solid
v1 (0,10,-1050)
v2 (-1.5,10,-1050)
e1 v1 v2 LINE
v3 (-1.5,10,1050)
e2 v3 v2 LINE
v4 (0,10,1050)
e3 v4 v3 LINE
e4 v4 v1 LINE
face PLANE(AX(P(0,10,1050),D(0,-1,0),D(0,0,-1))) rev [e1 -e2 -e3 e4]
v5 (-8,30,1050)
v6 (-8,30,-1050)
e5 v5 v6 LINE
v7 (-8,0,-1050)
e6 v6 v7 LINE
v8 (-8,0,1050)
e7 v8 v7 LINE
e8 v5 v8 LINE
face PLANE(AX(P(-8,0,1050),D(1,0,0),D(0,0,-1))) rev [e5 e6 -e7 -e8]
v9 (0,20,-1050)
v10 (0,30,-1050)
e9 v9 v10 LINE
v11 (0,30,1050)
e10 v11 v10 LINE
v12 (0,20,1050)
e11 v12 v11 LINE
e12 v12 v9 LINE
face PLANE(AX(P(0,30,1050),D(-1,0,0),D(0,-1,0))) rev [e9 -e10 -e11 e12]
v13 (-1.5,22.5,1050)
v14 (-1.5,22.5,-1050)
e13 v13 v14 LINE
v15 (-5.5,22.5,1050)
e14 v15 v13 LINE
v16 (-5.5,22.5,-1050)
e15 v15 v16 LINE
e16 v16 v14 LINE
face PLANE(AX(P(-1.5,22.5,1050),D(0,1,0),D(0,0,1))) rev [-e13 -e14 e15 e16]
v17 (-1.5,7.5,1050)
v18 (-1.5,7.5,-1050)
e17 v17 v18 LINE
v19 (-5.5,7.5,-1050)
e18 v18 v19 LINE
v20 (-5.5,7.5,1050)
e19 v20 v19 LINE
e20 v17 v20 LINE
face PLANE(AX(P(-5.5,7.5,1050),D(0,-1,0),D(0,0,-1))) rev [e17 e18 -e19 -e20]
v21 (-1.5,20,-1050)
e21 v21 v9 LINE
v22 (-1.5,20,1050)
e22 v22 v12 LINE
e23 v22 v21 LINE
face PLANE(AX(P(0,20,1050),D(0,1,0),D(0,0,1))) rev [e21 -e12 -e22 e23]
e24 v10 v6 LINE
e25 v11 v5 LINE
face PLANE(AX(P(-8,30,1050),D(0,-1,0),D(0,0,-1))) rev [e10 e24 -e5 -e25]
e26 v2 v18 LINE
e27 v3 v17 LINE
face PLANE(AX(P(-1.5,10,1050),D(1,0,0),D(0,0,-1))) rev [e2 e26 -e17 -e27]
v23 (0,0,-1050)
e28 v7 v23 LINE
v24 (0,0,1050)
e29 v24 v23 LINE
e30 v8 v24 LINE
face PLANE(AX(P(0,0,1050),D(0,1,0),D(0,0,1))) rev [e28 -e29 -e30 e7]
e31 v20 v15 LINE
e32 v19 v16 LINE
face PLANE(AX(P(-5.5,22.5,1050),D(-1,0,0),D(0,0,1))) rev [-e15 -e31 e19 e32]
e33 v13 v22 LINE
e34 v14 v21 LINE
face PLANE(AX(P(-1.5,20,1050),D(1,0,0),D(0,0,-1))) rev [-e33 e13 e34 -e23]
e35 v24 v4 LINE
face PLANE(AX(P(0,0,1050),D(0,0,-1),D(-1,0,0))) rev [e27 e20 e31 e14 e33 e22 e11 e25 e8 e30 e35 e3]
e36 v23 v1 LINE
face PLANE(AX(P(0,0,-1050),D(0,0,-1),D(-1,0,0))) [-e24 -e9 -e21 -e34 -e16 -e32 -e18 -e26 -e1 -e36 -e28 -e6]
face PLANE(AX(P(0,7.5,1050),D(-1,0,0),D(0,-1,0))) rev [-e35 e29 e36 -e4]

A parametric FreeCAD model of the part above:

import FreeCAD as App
import Part
import Sketcher

V = App.Vector
Q = App.Units.Quantity

doc = App.newDocument("Part")
body = doc.addObject("PartDesign::Body", "Body")

# Sketch on XY plane
sketch1 = body.newObject("Sketcher::SketchObject", "Sketch")
sketch1.AttachmentSupport = (doc.getObject("XY_Plane"), [""])
sketch1.MapMode = "FlatFace"
sketch1.addGeometry(Part.LineSegment(V(-8, 0, 0), V(0, 0, 0)), False)
sketch1.addGeometry(Part.LineSegment(V(0, 0, 0), V(0, 10, 0)), False)
sketch1.addGeometry(Part.LineSegment(V(0, 10, 0), V(-1.5, 10, 0)), False)
sketch1.addGeometry(Part.LineSegment(V(-1.5, 10, 0), V(-1.5, 7.5, 0)), False)
sketch1.addGeometry(Part.LineSegment(V(-1.5, 7.5, 0), V(-5.5, 7.5, 0)), False)
sketch1.addGeometry(Part.LineSegment(V(-5.5, 7.5, 0), V(-5.5, 22.5, 0)), False)
sketch1.addGeometry(Part.LineSegment(V(-5.5, 22.5, 0), V(-1.5, 22.5, 0)), False)
sketch1.addGeometry(Part.LineSegment(V(-1.5, 22.5, 0), V(-1.5, 20, 0)), False)
sketch1.addGeometry(Part.LineSegment(V(-1.5, 20, 0), V(0, 20, 0)), False)
sketch1.addGeometry(Part.LineSegment(V(0, 20, 0), V(0, 30, 0)), False)
sketch1.addGeometry(Part.LineSegment(V(0, 30, 0), V(-8, 30, 0)), False)
sketch1.addGeometry(Part.LineSegment(V(-8, 30, 0), V(-8, 0, 0)), False)
sketch1.addConstraint(Sketcher.Constraint("Coincident", 0, 2, 1, 1))
sketch1.addConstraint(Sketcher.Constraint("Coincident", 1, 2, 2, 1))
sketch1.addConstraint(Sketcher.Constraint("Coincident", 2, 2, 3, 1))
sketch1.addConstraint(Sketcher.Constraint("Coincident", 3, 2, 4, 1))
sketch1.addConstraint(Sketcher.Constraint("Coincident", 4, 2, 5, 1))
sketch1.addConstraint(Sketcher.Constraint("Coincident", 5, 2, 6, 1))
sketch1.addConstraint(Sketcher.Constraint("Coincident", 6, 2, 7, 1))
sketch1.addConstraint(Sketcher.Constraint("Coincident", 7, 2, 8, 1))
sketch1.addConstraint(Sketcher.Constraint("Coincident", 8, 2, 9, 1))
sketch1.addConstraint(Sketcher.Constraint("Coincident", 9, 2, 10, 1))
sketch1.addConstraint(Sketcher.Constraint("Coincident", 10, 2, 11, 1))
sketch1.addConstraint(Sketcher.Constraint("Coincident", 11, 2, 0, 1))
sketch1.addConstraint(Sketcher.Constraint("Horizontal", 0))
sketch1.addConstraint(Sketcher.Constraint("Vertical", 1))
sketch1.addConstraint(Sketcher.Constraint("Horizontal", 2))
sketch1.addConstraint(Sketcher.Constraint("Vertical", 3))
sketch1.addConstraint(Sketcher.Constraint("Horizontal", 4))
sketch1.addConstraint(Sketcher.Constraint("Vertical", 5))
sketch1.addConstraint(Sketcher.Constraint("Horizontal", 6))
sketch1.addConstraint(Sketcher.Constraint("Vertical", 7))
sketch1.addConstraint(Sketcher.Constraint("Horizontal", 8))
sketch1.addConstraint(Sketcher.Constraint("Vertical", 9))
sketch1.addConstraint(Sketcher.Constraint("Horizontal", 10))
sketch1.addConstraint(Sketcher.Constraint("Vertical", 11))
sketch1.addConstraint(Sketcher.Constraint("Coincident", 0, 2, -1, 1))
sketch1.addConstraint(Sketcher.Constraint("PointOnObject", 8, 2, -2))
sketch1.addConstraint(Sketcher.Constraint("Vertical", 3, 2, 6, 2))
sketch1.addConstraint(Sketcher.Constraint("Equal", 3, 7))
sketch1.addConstraint(Sketcher.Constraint("Equal", 1, 9))
sketch1.addConstraint(Sketcher.Constraint("DistanceX", 0, 1, 0, 2, Q("8 mm")))
sketch1.addConstraint(Sketcher.Constraint("DistanceX", 4, 2, 4, 1, Q("4 mm")))
sketch1.addConstraint(Sketcher.Constraint("DistanceY", 1, 1, 1, 2, Q("10 mm")))
sketch1.addConstraint(Sketcher.Constraint("DistanceY", 5, 1, 5, 2, Q("15 mm")))
sketch1.addConstraint(Sketcher.Constraint("DistanceY", 11, 2, 11, 1, Q("30 mm")))
sketch1.addConstraint(Sketcher.Constraint("DistanceX", 2, 2, 2, 1, Q("1.5 mm")))
pad1 = body.newObject("PartDesign::Pad", "Pad")
pad1.Profile = sketch1
pad1.Length = 2100
pad1.Midplane = True

doc.recompute()
